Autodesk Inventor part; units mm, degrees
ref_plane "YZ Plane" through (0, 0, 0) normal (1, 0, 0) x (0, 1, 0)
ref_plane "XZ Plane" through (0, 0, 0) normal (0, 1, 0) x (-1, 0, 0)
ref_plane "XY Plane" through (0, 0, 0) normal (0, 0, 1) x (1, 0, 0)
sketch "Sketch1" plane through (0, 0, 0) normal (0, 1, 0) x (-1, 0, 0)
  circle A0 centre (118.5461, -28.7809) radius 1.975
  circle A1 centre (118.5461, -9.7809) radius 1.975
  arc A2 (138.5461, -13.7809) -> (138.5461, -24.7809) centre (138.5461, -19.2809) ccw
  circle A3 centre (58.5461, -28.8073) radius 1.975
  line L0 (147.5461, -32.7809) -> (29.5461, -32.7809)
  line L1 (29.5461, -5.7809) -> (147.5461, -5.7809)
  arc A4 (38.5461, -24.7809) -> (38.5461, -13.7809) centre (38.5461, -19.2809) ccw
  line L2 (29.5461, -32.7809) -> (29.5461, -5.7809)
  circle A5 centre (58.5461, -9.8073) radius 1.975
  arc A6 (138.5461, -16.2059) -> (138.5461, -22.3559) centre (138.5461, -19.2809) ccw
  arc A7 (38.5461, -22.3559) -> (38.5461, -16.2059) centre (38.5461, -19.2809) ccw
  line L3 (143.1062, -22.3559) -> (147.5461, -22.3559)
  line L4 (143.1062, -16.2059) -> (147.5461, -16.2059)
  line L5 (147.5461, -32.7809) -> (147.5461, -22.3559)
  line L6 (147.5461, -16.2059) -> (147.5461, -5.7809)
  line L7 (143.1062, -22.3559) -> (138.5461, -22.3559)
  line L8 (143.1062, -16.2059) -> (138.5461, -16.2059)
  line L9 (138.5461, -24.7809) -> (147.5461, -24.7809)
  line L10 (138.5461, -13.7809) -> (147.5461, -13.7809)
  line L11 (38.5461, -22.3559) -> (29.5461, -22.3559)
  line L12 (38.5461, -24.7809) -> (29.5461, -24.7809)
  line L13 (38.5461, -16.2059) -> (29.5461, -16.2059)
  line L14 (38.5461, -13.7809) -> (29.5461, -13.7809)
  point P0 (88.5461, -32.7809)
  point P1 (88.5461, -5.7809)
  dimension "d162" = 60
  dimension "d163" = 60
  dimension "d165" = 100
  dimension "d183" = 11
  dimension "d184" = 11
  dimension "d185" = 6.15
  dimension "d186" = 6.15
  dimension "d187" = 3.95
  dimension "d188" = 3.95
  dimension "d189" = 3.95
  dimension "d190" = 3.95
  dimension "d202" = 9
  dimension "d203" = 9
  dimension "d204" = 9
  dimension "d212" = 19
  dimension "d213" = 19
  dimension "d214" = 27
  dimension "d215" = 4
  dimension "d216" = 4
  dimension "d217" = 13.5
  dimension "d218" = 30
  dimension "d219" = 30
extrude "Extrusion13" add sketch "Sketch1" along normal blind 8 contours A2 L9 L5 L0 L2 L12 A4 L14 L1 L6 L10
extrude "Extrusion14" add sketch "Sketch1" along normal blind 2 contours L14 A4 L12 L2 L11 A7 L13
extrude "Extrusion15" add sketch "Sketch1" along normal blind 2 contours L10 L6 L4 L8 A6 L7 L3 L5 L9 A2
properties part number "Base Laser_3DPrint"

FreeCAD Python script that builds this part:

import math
import FreeCAD as App
import Part
import Sketcher
from FreeCAD import Vector

doc = App.newDocument("Part")
params = doc.addObject("Spreadsheet::Sheet", "Params")
for row, (alias, value) in enumerate([
    ("sketch1_radius", "5.5 mm"),
    ("sketch1_diameter", "3.95 mm"),
    ("sketch1_width", "9 mm"),
    ("pad1_length", "8 mm"),
    ("sketch2_radius", "5.5 mm"),
    ("sketch2_width", "9 mm"),
    ("pad2_length", "2 mm"),
    ("sketch3_radius", "5.5 mm"),
    ("sketch3_width", "9 mm"),
    ("pad3_length", "2 mm"),
], start=1):
    params.set(f"A{row}", alias)
    params.set(f"B{row}", "=" + value)
    params.setAlias(f"B{row}", alias)

body = doc.addObject("PartDesign::Body", "Body")

sketch1 = doc.addObject("Sketcher::SketchObject", "Sketch")
body.addObject(sketch1)
sketch1.AttachmentSupport = (doc.XZ_Plane, [""])
sketch1.MapMode = "FlatFace"
sketch1.addGeometry(Part.ArcOfCircle(Part.Circle(Vector(-138.5, -19.3, 0), Vector(0, 0, 1), 5.5), math.radians(-90), math.radians(90)), False)
sketch1.addGeometry(Part.LineSegment(Vector(-138.5, -13.8, 0), Vector(-147.5, -13.8, 0)), False)
sketch1.addGeometry(Part.LineSegment(Vector(-147.5, -13.8, 0), Vector(-147.5, -5.8, 0)), False)
sketch1.addGeometry(Part.LineSegment(Vector(-147.5, -5.8, 0), Vector(-29.5, -5.8, 0)), False)
sketch1.addGeometry(Part.LineSegment(Vector(-29.5, -5.8, 0), Vector(-29.5, -13.8, 0)), False)
sketch1.addGeometry(Part.LineSegment(Vector(-29.5, -13.8, 0), Vector(-38.5, -13.8, 0)), False)
sketch1.addGeometry(Part.ArcOfCircle(Part.Circle(Vector(-38.5, -19.3, 0), Vector(0, 0, 1), 5.5), math.radians(90), math.radians(270)), False)
sketch1.addGeometry(Part.LineSegment(Vector(-38.5, -24.8, 0), Vector(-29.5, -24.8, 0)), False)
sketch1.addGeometry(Part.LineSegment(Vector(-29.5, -24.8, 0), Vector(-29.5, -32.8, 0)), False)
sketch1.addGeometry(Part.LineSegment(Vector(-29.5, -32.8, 0), Vector(-147.5, -32.8, 0)), False)
sketch1.addGeometry(Part.LineSegment(Vector(-147.5, -32.8, 0), Vector(-147.5, -24.8, 0)), False)
sketch1.addGeometry(Part.LineSegment(Vector(-147.5, -24.8, 0), Vector(-138.5, -24.8, 0)), False)
sketch1.addGeometry(Part.Circle(Vector(-58.5, -28.8, 0), Vector(0, 0, 1), 2), False)
sketch1.addGeometry(Part.Circle(Vector(-118.5, -28.8, 0), Vector(0, 0, 1), 2), False)
sketch1.addGeometry(Part.Circle(Vector(-58.5, -9.8, 0), Vector(0, 0, 1), 2), False)
sketch1.addGeometry(Part.Circle(Vector(-118.5, -9.8, 0), Vector(0, 0, 1), 2), False)
sketch1.addConstraint(Sketcher.Constraint("Tangent", 0, 2, 1, 1))
sketch1.addConstraint(Sketcher.Constraint("Coincident", 1, 2, 2, 1))
sketch1.addConstraint(Sketcher.Constraint("Coincident", 2, 2, 3, 1))
sketch1.addConstraint(Sketcher.Constraint("Coincident", 3, 2, 4, 1))
sketch1.addConstraint(Sketcher.Constraint("Coincident", 4, 2, 5, 1))
sketch1.addConstraint(Sketcher.Constraint("Tangent", 5, 2, 6, 1))
sketch1.addConstraint(Sketcher.Constraint("Tangent", 6, 2, 7, 1))
sketch1.addConstraint(Sketcher.Constraint("Coincident", 7, 2, 8, 1))
sketch1.addConstraint(Sketcher.Constraint("Coincident", 8, 2, 9, 1))
sketch1.addConstraint(Sketcher.Constraint("Coincident", 9, 2, 10, 1))
sketch1.addConstraint(Sketcher.Constraint("Coincident", 10, 2, 11, 1))
sketch1.addConstraint(Sketcher.Constraint("Tangent", 11, 2, 0, 1))
sketch1.addConstraint(Sketcher.Constraint("Horizontal", 1))
sketch1.addConstraint(Sketcher.Constraint("Vertical", 2))
sketch1.addConstraint(Sketcher.Constraint("Horizontal", 3))
sketch1.addConstraint(Sketcher.Constraint("Vertical", 4))
sketch1.addConstraint(Sketcher.Constraint("Horizontal", 5))
sketch1.addConstraint(Sketcher.Constraint("Horizontal", 7))
sketch1.addConstraint(Sketcher.Constraint("Vertical", 8))
sketch1.addConstraint(Sketcher.Constraint("Horizontal", 9))
sketch1.addConstraint(Sketcher.Constraint("Vertical", 10))
sketch1.addConstraint(Sketcher.Constraint("Horizontal", 11))
sketch1.addConstraint(Sketcher.Constraint("Equal", 0, 6))
sketch1.addConstraint(Sketcher.Constraint("Equal", 12, 13))
sketch1.addConstraint(Sketcher.Constraint("Equal", 13, 14))
sketch1.addConstraint(Sketcher.Constraint("Equal", 14, 15))
sketch1.addConstraint(Sketcher.Constraint("Horizontal", 0, 3, 6, 3))
sketch1.addConstraint(Sketcher.Constraint("Vertical", 12, 3, 14, 3))
sketch1.addConstraint(Sketcher.Constraint("Vertical", 13, 3, 15, 3))
sketch1.addConstraint(Sketcher.Constraint("Vertical", 4, 2, 7, 2))
sketch1.addConstraint(Sketcher.Constraint("Vertical", 2, 2, 9, 2))
sketch1.addConstraint(Sketcher.Constraint("Equal", 1, 5))
sketch1.addConstraint(Sketcher.Constraint("Equal", 4, 8))
sketch1.addConstraint(Sketcher.Constraint("Radius", 0, 5.5))
sketch1.addConstraint(Sketcher.Constraint("Diameter", 12, 3.95))
sketch1.addConstraint(Sketcher.Constraint("DistanceX", 1, 2, 1, 1, 9.0))
sketch1.addConstraint(Sketcher.Constraint("DistanceX", 0, 3, 6, 3, 100.0))
sketch1.addConstraint(Sketcher.Constraint("DistanceX", 13, 3, 12, 3, 60.0))
sketch1.addConstraint(Sketcher.Constraint("DistanceY", 12, 3, 14, 3, 19.0))
sketch1.addConstraint(Sketcher.Constraint("DistanceY", 13, 3, 15, 3, 19.0))
sketch1.addConstraint(Sketcher.Constraint("DistanceY", 0, 2, 15, 3, 4.0))
sketch1.addConstraint(Sketcher.Constraint("DistanceY", 15, 3, 2, 2, 4.0))
sketch1.addConstraint(Sketcher.Constraint("DistanceX", 12, 3, 6, 3, 20.0))
sketch1.addConstraint(Sketcher.Constraint("DistanceX", 0, 3, -1, 1, 138.546))
sketch1.addConstraint(Sketcher.Constraint("DistanceY", 0, 3, -1, 1, 19.281))
sketch1.addConstraint(Sketcher.Constraint("DistanceY", 12, 3, -1, 1, 28.8073))
sketch1.setExpression("Constraints[33]", "Params.sketch1_radius")
sketch1.setExpression("Constraints[34]", "Params.sketch1_diameter")
sketch1.setExpression("Constraints[35]", "Params.sketch1_width")
pad1 = doc.addObject("PartDesign::Pad", "Pad")
body.addObject(pad1)
pad1.Profile = sketch1
pad1.setExpression("Length", "Params.pad1_length")
pad1.Reversed = True

sketch2 = doc.addObject("Sketcher::SketchObject", "Sketch001")
body.addObject(sketch2)
sketch2.AttachmentSupport = (doc.XZ_Plane, [""])
sketch2.MapMode = "FlatFace"
sketch2.addGeometry(Part.LineSegment(Vector(-38.5, -13.8, 0), Vector(-29.5, -13.8, 0)), False)
sketch2.addGeometry(Part.LineSegment(Vector(-29.5, -13.8, 0), Vector(-29.5, -16.2, 0)), False)
sketch2.addGeometry(Part.LineSegment(Vector(-29.5, -16.2, 0), Vector(-38.5, -16.2, 0)), False)
sketch2.addGeometry(Part.ArcOfCircle(Part.Circle(Vector(-38.5, -19.3, 0), Vector(0, 0, 1), 3.1), math.radians(90), math.radians(270)), False)
sketch2.addGeometry(Part.LineSegment(Vector(-38.5, -22.4, 0), Vector(-29.5, -22.4, 0)), False)
sketch2.addGeometry(Part.LineSegment(Vector(-29.5, -22.4, 0), Vector(-29.5, -24.8, 0)), False)
sketch2.addGeometry(Part.LineSegment(Vector(-29.5, -24.8, 0), Vector(-38.5, -24.8, 0)), False)
sketch2.addGeometry(Part.ArcOfCircle(Part.Circle(Vector(-38.5, -19.3, 0), Vector(0, 0, 1), 5.5), math.radians(90), math.radians(270)), False)
sketch2.addConstraint(Sketcher.Constraint("Coincident", 0, 2, 1, 1))
sketch2.addConstraint(Sketcher.Constraint("Coincident", 1, 2, 2, 1))
sketch2.addConstraint(Sketcher.Constraint("Tangent", 2, 2, 3, 1))
sketch2.addConstraint(Sketcher.Constraint("Tangent", 3, 2, 4, 1))
sketch2.addConstraint(Sketcher.Constraint("Coincident", 4, 2, 5, 1))
sketch2.addConstraint(Sketcher.Constraint("Coincident", 5, 2, 6, 1))
sketch2.addConstraint(Sketcher.Constraint("Tangent", 6, 2, 7, 2))
sketch2.addConstraint(Sketcher.Constraint("Tangent", 7, 1, 0, 1))
sketch2.addConstraint(Sketcher.Constraint("Horizontal", 0))
sketch2.addConstraint(Sketcher.Constraint("Vertical", 1))
sketch2.addConstraint(Sketcher.Constraint("Horizontal", 2))
sketch2.addConstraint(Sketcher.Constraint("Horizontal", 4))
sketch2.addConstraint(Sketcher.Constraint("Vertical", 5))
sketch2.addConstraint(Sketcher.Constraint("Horizontal", 6))
sketch2.addConstraint(Sketcher.Constraint("Coincident", 7, 3, 3, 3))
sketch2.addConstraint(Sketcher.Constraint("Vertical", 1, 2, 4, 2))
sketch2.addConstraint(Sketcher.Constraint("Radius", 7, 5.5))
sketch2.addConstraint(Sketcher.Constraint("DistanceX", 0, 1, 0, 2, 9.0))
sketch2.addConstraint(Sketcher.Constraint("Radius", 3, 3.075))
sketch2.addConstraint(Sketcher.Constraint("DistanceX", 3, 3, -1, 1, 38.546))
sketch2.addConstraint(Sketcher.Constraint("DistanceY", 3, 3, -1, 1, 19.281))
sketch2.setExpression("Constraints[16]", "Params.sketch2_radius")
sketch2.setExpression("Constraints[17]", "Params.sketch2_width")
pad2 = doc.addObject("PartDesign::Pad", "Pad001")
body.addObject(pad2)
pad2.Profile = sketch2
pad2.setExpression("Length", "Params.pad2_length")
pad2.Reversed = True

sketch3 = doc.addObject("Sketcher::SketchObject", "Sketch002")
body.addObject(sketch3)
sketch3.AttachmentSupport = (doc.XZ_Plane, [""])
sketch3.MapMode = "FlatFace"
sketch3.addGeometry(Part.LineSegment(Vector(-147.5, -13.8, 0), Vector(-138.5, -13.8, 0)), False)
sketch3.addGeometry(Part.ArcOfCircle(Part.Circle(Vector(-138.5, -19.3, 0), Vector(0, 0, 1), 5.5), math.radians(-90), math.radians(90)), False)
sketch3.addGeometry(Part.LineSegment(Vector(-138.5, -24.8, 0), Vector(-147.5, -24.8, 0)), False)
sketch3.addGeometry(Part.LineSegment(Vector(-147.5, -24.8, 0), Vector(-147.5, -22.4, 0)), False)
sketch3.addGeometry(Part.LineSegment(Vector(-147.5, -22.4, 0), Vector(-138.5, -22.4, 0)), False)
sketch3.addGeometry(Part.ArcOfCircle(Part.Circle(Vector(-138.5, -19.3, 0), Vector(0, 0, 1), 3.1), math.radians(-90), math.radians(90)), False)
sketch3.addGeometry(Part.LineSegment(Vector(-138.5, -16.2, 0), Vector(-147.5, -16.2, 0)), False)
sketch3.addGeometry(Part.LineSegment(Vector(-147.5, -16.2, 0), Vector(-147.5, -13.8, 0)), False)
sketch3.addConstraint(Sketcher.Constraint("Tangent", 0, 2, 1, 2))
sketch3.addConstraint(Sketcher.Constraint("Tangent", 1, 1, 2, 1))
sketch3.addConstraint(Sketcher.Constraint("Coincident", 2, 2, 3, 1))
sketch3.addConstraint(Sketcher.Constraint("Coincident", 3, 2, 4, 1))
sketch3.addConstraint(Sketcher.Constraint("Tangent", 4, 2, 5, 1))
sketch3.addConstraint(Sketcher.Constraint("Tangent", 5, 2, 6, 1))
sketch3.addConstraint(Sketcher.Constraint("Coincident", 6, 2, 7, 1))
sketch3.addConstraint(Sketcher.Constraint("Coincident", 7, 2, 0, 1))
sketch3.addConstraint(Sketcher.Constraint("Horizontal", 0))
sketch3.addConstraint(Sketcher.Constraint("Horizontal", 2))
sketch3.addConstraint(Sketcher.Constraint("Vertical", 3))
sketch3.addConstraint(Sketcher.Constraint("Horizontal", 4))
sketch3.addConstraint(Sketcher.Constraint("Horizontal", 6))
sketch3.addConstraint(Sketcher.Constraint("Vertical", 7))
sketch3.addConstraint(Sketcher.Constraint("Coincident", 5, 3, 1, 3))
sketch3.addConstraint(Sketcher.Constraint("Vertical", 3, 2, 6, 2))
sketch3.addConstraint(Sketcher.Constraint("Radius", 1, 5.5))
sketch3.addConstraint(Sketcher.Constraint("DistanceX", 0, 1, 0, 2, 9.0))
sketch3.addConstraint(Sketcher.Constraint("Radius", 5, 3.075))
sketch3.addConstraint(Sketcher.Constraint("DistanceX", 1, 3, -1, 1, 138.546))
sketch3.addConstraint(Sketcher.Constraint("DistanceY", 1, 3, -1, 1, 19.281))
sketch3.setExpression("Constraints[16]", "Params.sketch3_radius")
sketch3.setExpression("Constraints[17]", "Params.sketch3_width")
pad3 = doc.addObject("PartDesign::Pad", "Pad002")
body.addObject(pad3)
pad3.Profile = sketch3
pad3.setExpression("Length", "Params.pad3_length")
pad3.Reversed = True

doc.recompute()
